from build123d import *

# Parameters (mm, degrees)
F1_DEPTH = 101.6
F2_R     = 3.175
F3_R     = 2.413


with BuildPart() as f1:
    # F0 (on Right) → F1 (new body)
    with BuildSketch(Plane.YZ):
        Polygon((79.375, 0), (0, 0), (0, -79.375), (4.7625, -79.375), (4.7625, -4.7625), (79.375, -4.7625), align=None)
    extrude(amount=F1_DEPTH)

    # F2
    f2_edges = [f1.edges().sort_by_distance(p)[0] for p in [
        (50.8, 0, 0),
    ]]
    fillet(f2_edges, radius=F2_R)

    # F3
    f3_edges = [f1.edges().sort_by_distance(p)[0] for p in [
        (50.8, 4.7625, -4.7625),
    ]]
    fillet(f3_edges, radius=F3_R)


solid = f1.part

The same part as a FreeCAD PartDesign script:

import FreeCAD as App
import Part
import Sketcher

V = App.Vector
Q = App.Units.Quantity


def edges_at(feature, points):
    """Names of the edges that pass closest to the given points."""
    edges = feature.Shape.Edges
    near = lambda p: min(range(len(edges)), key=lambda i: edges[i].distToShape(Part.Vertex(*p))[0])
    return sorted({f"Edge{near(p) + 1}" for p in points})

doc = App.newDocument("Part")
body = doc.addObject("PartDesign::Body", "Body")

# Sketch on YZ plane
sketch1 = doc.addObject("Sketcher::SketchObject", "Sketch")
body.addObject(sketch1)
sketch1.AttachmentSupport = (doc.YZ_Plane, [""])
sketch1.MapMode = "FlatFace"
sketch1.addGeometry([
    Part.LineSegment(V(79.4, 0, 0), V(0, 0, 0)),  # 0
    Part.LineSegment(V(0, 0, 0), V(0, -79.4, 0)),  # 1
    Part.LineSegment(V(0, -79.4, 0), V(4.8, -79.4, 0)),  # 2
    Part.LineSegment(V(4.8, -79.4, 0), V(4.8, -4.8, 0)),  # 3
    Part.LineSegment(V(4.8, -4.8, 0), V(79.4, -4.8, 0)),  # 4
    Part.LineSegment(V(79.4, -4.8, 0), V(79.4, 0, 0)),  # 5
], False)
sketch1.addConstraint([
    Sketcher.Constraint("Coincident", 0, 2, 1, 1),
    Sketcher.Constraint("Coincident", 1, 2, 2, 1),
    Sketcher.Constraint("Coincident", 2, 2, 3, 1),
    Sketcher.Constraint("Coincident", 3, 2, 4, 1),
    Sketcher.Constraint("Coincident", 4, 2, 5, 1),
    Sketcher.Constraint("Coincident", 5, 2, 0, 1),
    Sketcher.Constraint("Horizontal", 0),
    Sketcher.Constraint("Vertical", 1),
    Sketcher.Constraint("Horizontal", 2),
    Sketcher.Constraint("Vertical", 3),
    Sketcher.Constraint("Horizontal", 4),
    Sketcher.Constraint("Vertical", 5),
    Sketcher.Constraint("Coincident", 0, 2, -1, 1),
    Sketcher.Constraint("Equal", 0, 1),
    Sketcher.Constraint("Equal", 4, 3),
    Sketcher.Constraint("DistanceX", 0, 2, 0, 1, Q("3.125 in")),
    Sketcher.Constraint("DistanceX", 2, 1, 2, 2, Q("0.1875 in")),
])
pad1 = doc.addObject("PartDesign::Pad", "Pad")
body.addObject(pad1)
pad1.Profile = sketch1
pad1.Length = Q("4 in")
doc.recompute()

fillet = doc.addObject("PartDesign::Fillet", "Fillet")
body.addObject(fillet)
fillet.Base = (pad1, edges_at(pad1, [(50.8, 0, 0)]))
fillet.Radius = Q("0.125 in")
doc.recompute()

fillet2 = doc.addObject("PartDesign::Fillet", "Fillet001")
body.addObject(fillet2)
fillet2.Base = (fillet, edges_at(fillet, [(50.8, 4.763, -4.763)]))
fillet2.Radius = Q("0.095 in")

doc.recompute()
